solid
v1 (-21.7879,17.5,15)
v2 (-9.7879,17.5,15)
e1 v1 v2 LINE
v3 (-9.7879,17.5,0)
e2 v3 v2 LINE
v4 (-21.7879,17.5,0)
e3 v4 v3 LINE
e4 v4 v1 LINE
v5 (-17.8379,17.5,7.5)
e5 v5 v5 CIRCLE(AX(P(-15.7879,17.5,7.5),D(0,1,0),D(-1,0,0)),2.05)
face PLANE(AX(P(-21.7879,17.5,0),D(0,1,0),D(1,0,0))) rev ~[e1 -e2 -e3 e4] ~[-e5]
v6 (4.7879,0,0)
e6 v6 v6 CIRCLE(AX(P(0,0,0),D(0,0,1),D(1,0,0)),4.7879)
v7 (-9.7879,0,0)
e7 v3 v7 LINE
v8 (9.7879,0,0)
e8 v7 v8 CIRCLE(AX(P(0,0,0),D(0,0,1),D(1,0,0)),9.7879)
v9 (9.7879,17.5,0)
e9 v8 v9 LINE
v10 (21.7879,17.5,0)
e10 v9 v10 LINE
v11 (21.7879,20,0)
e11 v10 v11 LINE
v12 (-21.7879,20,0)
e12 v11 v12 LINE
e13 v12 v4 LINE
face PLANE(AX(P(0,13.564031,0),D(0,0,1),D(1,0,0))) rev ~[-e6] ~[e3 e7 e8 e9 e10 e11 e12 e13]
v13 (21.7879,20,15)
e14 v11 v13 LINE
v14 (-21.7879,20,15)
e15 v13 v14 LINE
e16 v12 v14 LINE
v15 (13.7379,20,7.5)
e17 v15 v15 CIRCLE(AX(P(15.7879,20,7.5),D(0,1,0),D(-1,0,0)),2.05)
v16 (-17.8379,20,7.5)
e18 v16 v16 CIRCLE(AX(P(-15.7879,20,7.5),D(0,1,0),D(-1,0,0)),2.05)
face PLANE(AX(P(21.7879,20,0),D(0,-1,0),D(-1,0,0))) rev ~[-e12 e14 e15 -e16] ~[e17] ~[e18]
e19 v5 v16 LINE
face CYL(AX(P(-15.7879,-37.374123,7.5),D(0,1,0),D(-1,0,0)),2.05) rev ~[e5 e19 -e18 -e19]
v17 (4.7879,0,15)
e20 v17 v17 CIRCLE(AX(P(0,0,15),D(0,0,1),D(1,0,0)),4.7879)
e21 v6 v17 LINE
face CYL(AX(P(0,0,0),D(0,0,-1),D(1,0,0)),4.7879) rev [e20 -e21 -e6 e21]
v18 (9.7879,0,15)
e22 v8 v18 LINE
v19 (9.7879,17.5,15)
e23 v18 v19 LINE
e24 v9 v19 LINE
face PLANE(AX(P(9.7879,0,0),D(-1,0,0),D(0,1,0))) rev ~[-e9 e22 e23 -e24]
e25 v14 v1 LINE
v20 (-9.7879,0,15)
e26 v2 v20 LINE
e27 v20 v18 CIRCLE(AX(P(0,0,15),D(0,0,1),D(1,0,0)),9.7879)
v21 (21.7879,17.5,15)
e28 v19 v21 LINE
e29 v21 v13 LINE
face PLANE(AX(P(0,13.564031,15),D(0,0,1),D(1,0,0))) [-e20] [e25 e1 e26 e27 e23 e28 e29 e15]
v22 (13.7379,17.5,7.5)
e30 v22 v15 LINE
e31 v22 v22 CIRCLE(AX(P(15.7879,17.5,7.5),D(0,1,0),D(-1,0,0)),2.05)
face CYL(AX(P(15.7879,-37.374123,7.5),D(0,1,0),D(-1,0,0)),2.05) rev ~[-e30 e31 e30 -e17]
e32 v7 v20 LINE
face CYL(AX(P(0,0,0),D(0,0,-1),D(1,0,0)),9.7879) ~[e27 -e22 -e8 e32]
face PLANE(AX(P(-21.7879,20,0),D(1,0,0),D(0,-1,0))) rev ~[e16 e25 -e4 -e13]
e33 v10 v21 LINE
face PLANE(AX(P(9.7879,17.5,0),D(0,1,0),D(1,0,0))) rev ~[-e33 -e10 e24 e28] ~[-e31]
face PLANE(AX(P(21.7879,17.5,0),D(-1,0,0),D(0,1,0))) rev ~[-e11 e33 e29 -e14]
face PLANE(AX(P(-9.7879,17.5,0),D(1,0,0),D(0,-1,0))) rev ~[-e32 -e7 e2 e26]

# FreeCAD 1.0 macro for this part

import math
import FreeCAD as App
import Part
import Sketcher
from FreeCAD import Vector
Q = App.Units.Quantity

doc = App.newDocument("Part")
body = doc.addObject("PartDesign::Body", "Body")

# Sketch on XY plane
sketch1 = body.newObject("Sketcher::SketchObject", "Sketch")
sketch1.AttachmentSupport = (doc.getObject("XY_Plane"), [""])
sketch1.MapMode = "FlatFace"
sketch1.addGeometry(Part.LineSegment(Vector(9.8, 0, 0), Vector(9.8, 17.5, 0)), False)
sketch1.addGeometry(Part.LineSegment(Vector(9.8, 17.5, 0), Vector(21.8, 17.5, 0)), False)
sketch1.addGeometry(Part.LineSegment(Vector(21.8, 17.5, 0), Vector(21.8, 20, 0)), False)
sketch1.addGeometry(Part.LineSegment(Vector(21.8, 20, 0), Vector(-21.8, 20, 0)), False)
sketch1.addGeometry(Part.LineSegment(Vector(-21.8, 20, 0), Vector(-21.8, 17.5, 0)), False)
sketch1.addGeometry(Part.LineSegment(Vector(-21.8, 17.5, 0), Vector(-9.8, 17.5, 0)), False)
sketch1.addGeometry(Part.LineSegment(Vector(-9.8, 17.5, 0), Vector(-9.8, 0, 0)), False)
sketch1.addGeometry(Part.ArcOfCircle(Part.Circle(Vector(0, 0, 0), Vector(0, 0, 1), 9.8), math.radians(180), math.radians(360)), False)
sketch1.addGeometry(Part.Circle(Vector(0, 0, 0), Vector(0, 0, 1), 4.8), False)
sketch1.addConstraint(Sketcher.Constraint("Coincident", 0, 2, 1, 1))
sketch1.addConstraint(Sketcher.Constraint("Coincident", 1, 2, 2, 1))
sketch1.addConstraint(Sketcher.Constraint("Coincident", 2, 2, 3, 1))
sketch1.addConstraint(Sketcher.Constraint("Coincident", 3, 2, 4, 1))
sketch1.addConstraint(Sketcher.Constraint("Coincident", 4, 2, 5, 1))
sketch1.addConstraint(Sketcher.Constraint("Coincident", 5, 2, 6, 1))
sketch1.addConstraint(Sketcher.Constraint("Tangent", 6, 2, 7, 1))
sketch1.addConstraint(Sketcher.Constraint("Tangent", 7, 2, 0, 1))
sketch1.addConstraint(Sketcher.Constraint("Vertical", 0))
sketch1.addConstraint(Sketcher.Constraint("Horizontal", 1))
sketch1.addConstraint(Sketcher.Constraint("Vertical", 2))
sketch1.addConstraint(Sketcher.Constraint("Horizontal", 3))
sketch1.addConstraint(Sketcher.Constraint("Vertical", 4))
sketch1.addConstraint(Sketcher.Constraint("Horizontal", 5))
sketch1.addConstraint(Sketcher.Constraint("Vertical", 6))
sketch1.addConstraint(Sketcher.Constraint("Coincident", 7, 3, -1, 1))
sketch1.addConstraint(Sketcher.Constraint("Coincident", 8, 3, -1, 1))
sketch1.addConstraint(Sketcher.Constraint("Symmetric", 1, 2, 4, 2, -2))
sketch1.addConstraint(Sketcher.Constraint("DistanceX", 1, 1, 1, 2, Q("12 mm")))
sketch1.addConstraint(Sketcher.Constraint("DistanceY", 0, 1, 0, 2, Q("17.5 mm")))
sketch1.addConstraint(Sketcher.Constraint("DistanceY", 2, 1, 2, 2, Q("2.5 mm")))
sketch1.addConstraint(Sketcher.Constraint("Diameter", 8, Q("9.5758 mm")))
sketch1.addConstraint(Sketcher.Constraint("Radius", 7, Q("9.7879 mm")))
pad1 = body.newObject("PartDesign::Pad", "Pad")
pad1.Profile = sketch1
pad1.Length = 15

# Sketch on XZ plane
sketch2 = body.newObject("Sketcher::SketchObject", "Sketch001")
sketch2.AttachmentSupport = (doc.getObject("XZ_Plane"), [""])
sketch2.MapMode = "FlatFace"
sketch2.AttachmentOffset = App.Placement(Vector(0, 0, -17.5), App.Rotation())
sketch2.addGeometry(Part.Circle(Vector(15.8, 7.5, 0), Vector(0, 0, 1), 2), False)
sketch2.addConstraint(Sketcher.Constraint("Diameter", 0, Q("4.1 mm")))
sketch2.addConstraint(Sketcher.Constraint("DistanceY", -1, 1, 0, 3, Q("7.5 mm")))
sketch2.addConstraint(Sketcher.Constraint("DistanceX", -1, 1, 0, 3, Q("15.7879 mm")))
doc.recompute()
hole = body.newObject("PartDesign::Hole", "Hole")
hole.Profile = sketch2
hole.ThreadType = "None"
hole.Diameter = 4.1
hole.DepthType = "ThroughAll"

# Sketch on XZ plane
sketch3 = body.newObject("Sketcher::SketchObject", "Sketch002")
sketch3.AttachmentSupport = (doc.getObject("XZ_Plane"), [""])
sketch3.MapMode = "FlatFace"
sketch3.AttachmentOffset = App.Placement(Vector(0, 0, -17.5), App.Rotation())
sketch3.addGeometry(Part.Circle(Vector(-15.8, 7.5, 0), Vector(0, 0, 1), 2), False)
sketch3.addConstraint(Sketcher.Constraint("Diameter", 0, Q("4.1 mm")))
sketch3.addConstraint(Sketcher.Constraint("DistanceY", -1, 1, 0, 3, Q("7.5 mm")))
sketch3.addConstraint(Sketcher.Constraint("DistanceX", 0, 3, -1, 1, Q("15.7879 mm")))
doc.recompute()
hole2 = body.newObject("PartDesign::Hole", "Hole001")
hole2.Profile = sketch3
hole2.ThreadType = "None"
hole2.Diameter = 4.1
hole2.DepthType = "ThroughAll"

doc.recompute()
